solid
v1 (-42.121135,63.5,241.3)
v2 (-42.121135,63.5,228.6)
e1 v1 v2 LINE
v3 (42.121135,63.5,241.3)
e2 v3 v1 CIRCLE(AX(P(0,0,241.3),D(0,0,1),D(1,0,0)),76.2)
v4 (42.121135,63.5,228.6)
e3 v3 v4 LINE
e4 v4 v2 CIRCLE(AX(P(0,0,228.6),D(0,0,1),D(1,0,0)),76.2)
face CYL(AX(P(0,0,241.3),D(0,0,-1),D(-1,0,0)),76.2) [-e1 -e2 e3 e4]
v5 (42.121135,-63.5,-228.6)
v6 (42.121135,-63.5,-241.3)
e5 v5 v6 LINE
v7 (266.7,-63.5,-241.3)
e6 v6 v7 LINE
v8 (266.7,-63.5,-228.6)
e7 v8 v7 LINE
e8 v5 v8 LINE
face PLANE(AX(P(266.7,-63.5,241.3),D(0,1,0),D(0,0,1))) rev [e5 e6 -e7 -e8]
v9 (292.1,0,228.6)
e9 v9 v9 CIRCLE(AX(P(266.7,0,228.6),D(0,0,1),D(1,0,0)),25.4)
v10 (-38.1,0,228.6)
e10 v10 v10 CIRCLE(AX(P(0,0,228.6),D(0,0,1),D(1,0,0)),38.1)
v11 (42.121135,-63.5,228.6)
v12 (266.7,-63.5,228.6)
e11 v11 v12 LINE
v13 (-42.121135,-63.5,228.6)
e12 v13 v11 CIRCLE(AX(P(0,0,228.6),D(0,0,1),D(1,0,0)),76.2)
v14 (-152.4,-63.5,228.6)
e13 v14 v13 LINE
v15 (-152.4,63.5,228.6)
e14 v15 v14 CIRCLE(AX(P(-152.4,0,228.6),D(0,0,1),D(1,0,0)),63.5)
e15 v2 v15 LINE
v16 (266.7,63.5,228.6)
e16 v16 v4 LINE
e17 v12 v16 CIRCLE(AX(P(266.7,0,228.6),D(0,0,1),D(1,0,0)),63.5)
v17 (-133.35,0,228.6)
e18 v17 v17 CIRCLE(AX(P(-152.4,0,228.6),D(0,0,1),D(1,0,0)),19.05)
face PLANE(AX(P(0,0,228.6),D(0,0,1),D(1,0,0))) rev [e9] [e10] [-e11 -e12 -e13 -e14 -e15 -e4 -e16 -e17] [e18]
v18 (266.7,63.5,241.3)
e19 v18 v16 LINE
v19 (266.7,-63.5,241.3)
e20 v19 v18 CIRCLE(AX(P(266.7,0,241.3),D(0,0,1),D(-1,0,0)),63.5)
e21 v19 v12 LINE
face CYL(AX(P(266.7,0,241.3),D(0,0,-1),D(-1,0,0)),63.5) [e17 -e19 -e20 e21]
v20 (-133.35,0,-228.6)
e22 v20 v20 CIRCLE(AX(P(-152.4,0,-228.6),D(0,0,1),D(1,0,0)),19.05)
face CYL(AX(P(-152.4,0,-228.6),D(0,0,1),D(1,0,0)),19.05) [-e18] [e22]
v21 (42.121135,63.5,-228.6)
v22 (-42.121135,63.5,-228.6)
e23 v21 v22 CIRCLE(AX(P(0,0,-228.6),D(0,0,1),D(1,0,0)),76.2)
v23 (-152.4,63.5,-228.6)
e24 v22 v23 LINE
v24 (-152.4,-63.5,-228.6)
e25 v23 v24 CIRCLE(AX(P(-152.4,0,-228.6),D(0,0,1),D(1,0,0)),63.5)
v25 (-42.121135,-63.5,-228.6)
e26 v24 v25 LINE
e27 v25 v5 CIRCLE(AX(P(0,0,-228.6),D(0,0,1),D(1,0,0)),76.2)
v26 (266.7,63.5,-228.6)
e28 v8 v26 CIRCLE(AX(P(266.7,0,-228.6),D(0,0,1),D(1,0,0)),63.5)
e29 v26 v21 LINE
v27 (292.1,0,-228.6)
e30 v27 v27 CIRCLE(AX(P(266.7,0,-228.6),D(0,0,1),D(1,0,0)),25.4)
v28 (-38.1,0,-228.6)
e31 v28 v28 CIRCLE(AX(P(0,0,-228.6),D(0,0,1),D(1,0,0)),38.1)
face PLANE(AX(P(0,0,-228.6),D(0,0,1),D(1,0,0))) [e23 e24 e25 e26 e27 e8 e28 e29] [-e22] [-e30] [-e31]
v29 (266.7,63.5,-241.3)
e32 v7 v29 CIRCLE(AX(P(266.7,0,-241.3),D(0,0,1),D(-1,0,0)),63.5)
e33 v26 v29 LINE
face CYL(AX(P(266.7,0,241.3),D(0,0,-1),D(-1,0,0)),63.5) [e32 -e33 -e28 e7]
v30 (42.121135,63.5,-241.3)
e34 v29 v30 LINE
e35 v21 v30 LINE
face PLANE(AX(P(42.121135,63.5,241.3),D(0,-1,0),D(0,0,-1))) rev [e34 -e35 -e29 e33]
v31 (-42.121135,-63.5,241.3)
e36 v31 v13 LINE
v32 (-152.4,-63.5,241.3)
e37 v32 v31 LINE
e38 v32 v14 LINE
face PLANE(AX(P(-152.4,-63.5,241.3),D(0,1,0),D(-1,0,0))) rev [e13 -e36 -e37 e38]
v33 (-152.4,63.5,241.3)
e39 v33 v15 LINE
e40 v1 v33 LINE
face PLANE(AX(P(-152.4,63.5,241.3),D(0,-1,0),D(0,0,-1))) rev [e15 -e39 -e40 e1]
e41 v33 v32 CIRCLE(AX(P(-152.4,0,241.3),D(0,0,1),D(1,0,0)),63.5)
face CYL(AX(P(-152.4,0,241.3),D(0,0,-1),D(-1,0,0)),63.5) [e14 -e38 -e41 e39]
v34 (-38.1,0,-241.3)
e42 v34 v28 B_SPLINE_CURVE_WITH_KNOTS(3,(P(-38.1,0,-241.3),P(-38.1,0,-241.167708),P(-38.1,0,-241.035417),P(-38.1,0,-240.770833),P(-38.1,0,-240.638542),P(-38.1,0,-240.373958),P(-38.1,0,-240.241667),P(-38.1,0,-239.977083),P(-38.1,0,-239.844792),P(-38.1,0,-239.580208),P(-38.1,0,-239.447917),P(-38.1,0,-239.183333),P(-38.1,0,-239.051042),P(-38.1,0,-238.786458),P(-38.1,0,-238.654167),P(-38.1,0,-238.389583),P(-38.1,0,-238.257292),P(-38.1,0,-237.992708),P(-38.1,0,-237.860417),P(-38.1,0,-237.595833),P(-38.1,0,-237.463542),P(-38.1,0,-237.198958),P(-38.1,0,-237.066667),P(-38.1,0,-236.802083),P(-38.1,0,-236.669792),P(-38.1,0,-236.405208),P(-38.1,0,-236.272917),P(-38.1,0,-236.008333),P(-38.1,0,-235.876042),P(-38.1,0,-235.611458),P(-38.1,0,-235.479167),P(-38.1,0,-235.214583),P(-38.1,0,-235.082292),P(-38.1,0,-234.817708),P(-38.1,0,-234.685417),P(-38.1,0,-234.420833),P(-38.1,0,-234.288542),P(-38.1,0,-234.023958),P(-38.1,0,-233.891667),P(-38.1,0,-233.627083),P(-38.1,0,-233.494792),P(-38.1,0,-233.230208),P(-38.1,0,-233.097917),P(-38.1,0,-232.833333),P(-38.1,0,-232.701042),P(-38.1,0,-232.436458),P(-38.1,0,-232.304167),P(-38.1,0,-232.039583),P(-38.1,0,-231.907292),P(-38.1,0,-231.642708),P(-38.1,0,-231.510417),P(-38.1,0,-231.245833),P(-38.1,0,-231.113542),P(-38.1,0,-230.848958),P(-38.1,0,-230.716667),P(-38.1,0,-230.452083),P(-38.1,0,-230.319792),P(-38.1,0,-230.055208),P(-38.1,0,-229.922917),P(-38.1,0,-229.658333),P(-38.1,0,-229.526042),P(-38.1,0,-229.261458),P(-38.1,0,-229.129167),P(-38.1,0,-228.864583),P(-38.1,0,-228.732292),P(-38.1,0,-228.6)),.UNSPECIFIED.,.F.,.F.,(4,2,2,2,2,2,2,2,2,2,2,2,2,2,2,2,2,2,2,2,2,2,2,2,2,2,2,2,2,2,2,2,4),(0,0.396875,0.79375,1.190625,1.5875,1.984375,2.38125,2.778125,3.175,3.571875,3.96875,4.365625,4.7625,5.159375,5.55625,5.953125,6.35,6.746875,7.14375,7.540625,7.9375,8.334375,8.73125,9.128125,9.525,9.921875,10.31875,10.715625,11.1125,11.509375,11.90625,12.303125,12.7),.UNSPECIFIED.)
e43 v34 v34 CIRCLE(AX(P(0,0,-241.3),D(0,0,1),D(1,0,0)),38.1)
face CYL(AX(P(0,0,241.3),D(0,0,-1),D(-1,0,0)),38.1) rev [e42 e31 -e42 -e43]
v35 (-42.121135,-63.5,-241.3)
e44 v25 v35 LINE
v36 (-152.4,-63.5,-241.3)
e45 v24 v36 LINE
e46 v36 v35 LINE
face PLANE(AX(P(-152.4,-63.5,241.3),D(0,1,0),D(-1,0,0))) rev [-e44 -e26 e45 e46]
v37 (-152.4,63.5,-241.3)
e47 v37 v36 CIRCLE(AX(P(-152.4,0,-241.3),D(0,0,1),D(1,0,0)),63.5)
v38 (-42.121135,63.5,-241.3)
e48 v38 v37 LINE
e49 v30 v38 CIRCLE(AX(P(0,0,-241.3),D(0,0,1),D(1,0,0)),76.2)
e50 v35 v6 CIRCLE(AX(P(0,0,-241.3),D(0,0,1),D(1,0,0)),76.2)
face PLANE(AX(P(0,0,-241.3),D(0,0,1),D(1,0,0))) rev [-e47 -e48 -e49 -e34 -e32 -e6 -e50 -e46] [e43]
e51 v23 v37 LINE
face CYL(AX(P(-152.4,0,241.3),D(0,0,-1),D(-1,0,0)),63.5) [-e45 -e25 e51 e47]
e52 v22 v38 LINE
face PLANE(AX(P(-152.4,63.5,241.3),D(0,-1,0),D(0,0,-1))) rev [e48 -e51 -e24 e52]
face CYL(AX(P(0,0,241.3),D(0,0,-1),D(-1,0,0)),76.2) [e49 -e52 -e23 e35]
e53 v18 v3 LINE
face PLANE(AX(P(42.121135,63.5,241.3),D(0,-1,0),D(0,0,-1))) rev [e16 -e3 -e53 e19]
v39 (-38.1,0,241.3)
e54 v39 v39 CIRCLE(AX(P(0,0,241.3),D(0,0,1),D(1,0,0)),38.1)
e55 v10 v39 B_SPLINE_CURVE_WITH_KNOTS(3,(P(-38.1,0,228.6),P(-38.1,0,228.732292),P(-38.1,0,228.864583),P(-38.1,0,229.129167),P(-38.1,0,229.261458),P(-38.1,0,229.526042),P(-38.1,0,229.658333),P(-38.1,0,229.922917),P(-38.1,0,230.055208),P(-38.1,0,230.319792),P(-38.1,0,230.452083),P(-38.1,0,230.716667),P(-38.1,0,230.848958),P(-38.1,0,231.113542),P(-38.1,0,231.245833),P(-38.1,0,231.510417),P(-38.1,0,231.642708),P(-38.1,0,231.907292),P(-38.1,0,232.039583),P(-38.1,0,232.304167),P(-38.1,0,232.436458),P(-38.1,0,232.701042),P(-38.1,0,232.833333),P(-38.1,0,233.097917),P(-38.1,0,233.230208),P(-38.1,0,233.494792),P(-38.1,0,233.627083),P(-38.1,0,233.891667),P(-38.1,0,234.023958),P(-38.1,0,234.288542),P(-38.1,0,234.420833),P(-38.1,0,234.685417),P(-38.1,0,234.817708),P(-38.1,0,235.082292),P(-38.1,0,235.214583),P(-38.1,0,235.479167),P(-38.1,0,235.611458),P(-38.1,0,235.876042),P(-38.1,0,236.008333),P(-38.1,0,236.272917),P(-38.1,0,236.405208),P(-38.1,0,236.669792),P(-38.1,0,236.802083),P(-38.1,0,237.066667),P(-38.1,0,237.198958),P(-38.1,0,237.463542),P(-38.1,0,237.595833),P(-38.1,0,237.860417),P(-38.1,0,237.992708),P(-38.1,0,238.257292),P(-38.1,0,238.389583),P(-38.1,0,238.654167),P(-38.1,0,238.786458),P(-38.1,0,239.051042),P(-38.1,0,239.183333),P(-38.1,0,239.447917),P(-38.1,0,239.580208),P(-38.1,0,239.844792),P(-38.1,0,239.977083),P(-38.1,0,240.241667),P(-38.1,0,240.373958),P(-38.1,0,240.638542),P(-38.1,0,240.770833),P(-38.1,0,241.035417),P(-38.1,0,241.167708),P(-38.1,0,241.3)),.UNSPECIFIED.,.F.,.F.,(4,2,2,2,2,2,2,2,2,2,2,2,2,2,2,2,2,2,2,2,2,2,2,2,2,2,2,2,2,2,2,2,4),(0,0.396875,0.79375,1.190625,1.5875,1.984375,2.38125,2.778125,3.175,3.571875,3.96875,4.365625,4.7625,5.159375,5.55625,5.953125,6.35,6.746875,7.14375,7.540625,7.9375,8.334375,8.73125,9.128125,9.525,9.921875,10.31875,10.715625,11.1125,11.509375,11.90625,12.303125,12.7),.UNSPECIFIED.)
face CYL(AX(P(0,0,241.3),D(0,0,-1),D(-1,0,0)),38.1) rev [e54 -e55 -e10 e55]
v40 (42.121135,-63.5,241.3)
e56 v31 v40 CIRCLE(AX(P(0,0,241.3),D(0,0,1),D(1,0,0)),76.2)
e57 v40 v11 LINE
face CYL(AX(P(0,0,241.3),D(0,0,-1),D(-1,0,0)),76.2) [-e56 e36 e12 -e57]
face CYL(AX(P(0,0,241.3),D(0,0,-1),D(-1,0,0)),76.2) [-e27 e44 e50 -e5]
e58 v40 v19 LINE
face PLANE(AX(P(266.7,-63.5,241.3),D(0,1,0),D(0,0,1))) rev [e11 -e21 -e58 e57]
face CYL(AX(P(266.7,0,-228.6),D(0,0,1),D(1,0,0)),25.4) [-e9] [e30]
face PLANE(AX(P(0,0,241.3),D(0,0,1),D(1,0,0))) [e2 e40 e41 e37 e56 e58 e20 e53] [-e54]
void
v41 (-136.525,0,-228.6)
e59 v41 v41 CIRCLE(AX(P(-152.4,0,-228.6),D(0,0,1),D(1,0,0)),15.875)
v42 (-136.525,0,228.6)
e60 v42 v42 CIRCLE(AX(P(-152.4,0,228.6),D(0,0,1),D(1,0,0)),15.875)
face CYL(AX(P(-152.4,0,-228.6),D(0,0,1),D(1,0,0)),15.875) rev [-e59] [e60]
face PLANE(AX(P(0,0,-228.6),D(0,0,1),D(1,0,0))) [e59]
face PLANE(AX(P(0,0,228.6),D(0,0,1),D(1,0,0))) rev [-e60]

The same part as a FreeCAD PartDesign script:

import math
import FreeCAD as App
import Part
import Sketcher
from FreeCAD import Vector
Q = App.Units.Quantity

doc = App.newDocument("Part")
body = doc.addObject("PartDesign::Body", "Body")

# Sketch on XY plane
sketch1 = body.newObject("Sketcher::SketchObject", "Sketch")
sketch1.AttachmentSupport = (doc.getObject("XY_Plane"), [""])
sketch1.MapMode = "FlatFace"
sketch1.addGeometry([
    Part.LineSegment(Vector(-42, 64, 0), Vector(-152, 64, 0)),  # 0
    Part.ArcOfCircle(Part.Circle(Vector(-152, 0, 0), Vector(0, 0, 1), 64), math.radians(90), math.radians(270)),  # 1
    Part.LineSegment(Vector(-152, -64, 0), Vector(-42, -64, 0)),  # 2
    Part.ArcOfCircle(Part.Circle(Vector(0, 0, 0), Vector(0, 0, 1), 76), math.radians(-124), math.radians(-56)),  # 3
    Part.LineSegment(Vector(42, -64, 0), Vector(267, -64, 0)),  # 4
    Part.ArcOfCircle(Part.Circle(Vector(267, 0, 0), Vector(0, 0, 1), 64), math.radians(-90), math.radians(90)),  # 5
    Part.LineSegment(Vector(267, 64, 0), Vector(42, 64, 0)),  # 6
    Part.ArcOfCircle(Part.Circle(Vector(0, 0, 0), Vector(0, 0, 1), 76), math.radians(56), math.radians(124)),  # 7
    Part.Circle(Vector(0, 0, 0), Vector(0, 0, 1), 38),  # 8
], False)
sketch1.addConstraint([
    Sketcher.Constraint("Tangent", 0, 2, 1, 1),
    Sketcher.Constraint("Tangent", 1, 2, 2, 1),
    Sketcher.Constraint("Coincident", 2, 2, 3, 1),
    Sketcher.Constraint("Coincident", 3, 2, 4, 1),
    Sketcher.Constraint("Tangent", 4, 2, 5, 1),
    Sketcher.Constraint("Tangent", 5, 2, 6, 1),
    Sketcher.Constraint("Coincident", 6, 2, 7, 1),
    Sketcher.Constraint("Coincident", 7, 2, 0, 1),
    Sketcher.Constraint("Horizontal", 0),
    Sketcher.Constraint("Horizontal", 2),
    Sketcher.Constraint("Horizontal", 4),
    Sketcher.Constraint("Horizontal", 6),
    Sketcher.Constraint("Coincident", 3, 3, -1, 1),
    Sketcher.Constraint("Coincident", 7, 3, -1, 1),
    Sketcher.Constraint("Coincident", 8, 3, -1, 1),
    Sketcher.Constraint("Equal", 1, 5),
    Sketcher.Constraint("Equal", 3, 7),
    Sketcher.Constraint("PointOnObject", 1, 3, -1),
    Sketcher.Constraint("PointOnObject", 5, 3, -1),
    Sketcher.Constraint("Diameter", 8, Q("3 in")),
    Sketcher.Constraint("Radius", 3, Q("3 in")),
    Sketcher.Constraint("Radius", 1, Q("2.5 in")),
    Sketcher.Constraint("DistanceX", 1, 3, -1, 1, Q("6 in")),
    Sketcher.Constraint("DistanceX", -1, 1, 5, 3, Q("10.5 in")),
])
pad1 = body.newObject("PartDesign::Pad", "Pad")
pad1.Profile = sketch1
pad1.Length = Q("19 in")
pad1.Midplane = True

# Sketch on XY plane
sketch2 = body.newObject("Sketcher::SketchObject", "Sketch001")
sketch2.AttachmentSupport = (doc.getObject("XY_Plane"), [""])
sketch2.MapMode = "FlatFace"
sketch2.addGeometry([
    Part.Circle(Vector(0, 0, 0), Vector(0, 0, 1), 330),
    Part.Circle(Vector(-152, 0, 0), Vector(0, 0, 1), 19),
    Part.Circle(Vector(267, 0, 0), Vector(0, 0, 1), 25),
    Part.Circle(Vector(-152, 0, 0), Vector(0, 0, 1), 16),
], False)
sketch2.addConstraint([
    Sketcher.Constraint("Coincident", 0, 3, -1, 1),
    Sketcher.Constraint("Coincident", 3, 3, 1, 3),
    Sketcher.Constraint("PointOnObject", 1, 3, -1),
    Sketcher.Constraint("PointOnObject", 2, 3, -1),
    Sketcher.Constraint("Diameter", 0, Q("26 in")),
    Sketcher.Constraint("Diameter", 2, Q("2 in")),
    Sketcher.Constraint("Diameter", 1, Q("1.5 in")),
    Sketcher.Constraint("Diameter", 3, Q("1.25 in")),
    Sketcher.Constraint("DistanceX", 1, 3, -1, 1, Q("6 in")),
    Sketcher.Constraint("DistanceX", -1, 1, 2, 3, Q("10.5 in")),
])
pocket1 = body.newObject("PartDesign::Pocket", "Pocket")
pocket1.Profile = sketch2
pocket1.Length = Q("18 in")
pocket1.Midplane = True

doc.recompute()
